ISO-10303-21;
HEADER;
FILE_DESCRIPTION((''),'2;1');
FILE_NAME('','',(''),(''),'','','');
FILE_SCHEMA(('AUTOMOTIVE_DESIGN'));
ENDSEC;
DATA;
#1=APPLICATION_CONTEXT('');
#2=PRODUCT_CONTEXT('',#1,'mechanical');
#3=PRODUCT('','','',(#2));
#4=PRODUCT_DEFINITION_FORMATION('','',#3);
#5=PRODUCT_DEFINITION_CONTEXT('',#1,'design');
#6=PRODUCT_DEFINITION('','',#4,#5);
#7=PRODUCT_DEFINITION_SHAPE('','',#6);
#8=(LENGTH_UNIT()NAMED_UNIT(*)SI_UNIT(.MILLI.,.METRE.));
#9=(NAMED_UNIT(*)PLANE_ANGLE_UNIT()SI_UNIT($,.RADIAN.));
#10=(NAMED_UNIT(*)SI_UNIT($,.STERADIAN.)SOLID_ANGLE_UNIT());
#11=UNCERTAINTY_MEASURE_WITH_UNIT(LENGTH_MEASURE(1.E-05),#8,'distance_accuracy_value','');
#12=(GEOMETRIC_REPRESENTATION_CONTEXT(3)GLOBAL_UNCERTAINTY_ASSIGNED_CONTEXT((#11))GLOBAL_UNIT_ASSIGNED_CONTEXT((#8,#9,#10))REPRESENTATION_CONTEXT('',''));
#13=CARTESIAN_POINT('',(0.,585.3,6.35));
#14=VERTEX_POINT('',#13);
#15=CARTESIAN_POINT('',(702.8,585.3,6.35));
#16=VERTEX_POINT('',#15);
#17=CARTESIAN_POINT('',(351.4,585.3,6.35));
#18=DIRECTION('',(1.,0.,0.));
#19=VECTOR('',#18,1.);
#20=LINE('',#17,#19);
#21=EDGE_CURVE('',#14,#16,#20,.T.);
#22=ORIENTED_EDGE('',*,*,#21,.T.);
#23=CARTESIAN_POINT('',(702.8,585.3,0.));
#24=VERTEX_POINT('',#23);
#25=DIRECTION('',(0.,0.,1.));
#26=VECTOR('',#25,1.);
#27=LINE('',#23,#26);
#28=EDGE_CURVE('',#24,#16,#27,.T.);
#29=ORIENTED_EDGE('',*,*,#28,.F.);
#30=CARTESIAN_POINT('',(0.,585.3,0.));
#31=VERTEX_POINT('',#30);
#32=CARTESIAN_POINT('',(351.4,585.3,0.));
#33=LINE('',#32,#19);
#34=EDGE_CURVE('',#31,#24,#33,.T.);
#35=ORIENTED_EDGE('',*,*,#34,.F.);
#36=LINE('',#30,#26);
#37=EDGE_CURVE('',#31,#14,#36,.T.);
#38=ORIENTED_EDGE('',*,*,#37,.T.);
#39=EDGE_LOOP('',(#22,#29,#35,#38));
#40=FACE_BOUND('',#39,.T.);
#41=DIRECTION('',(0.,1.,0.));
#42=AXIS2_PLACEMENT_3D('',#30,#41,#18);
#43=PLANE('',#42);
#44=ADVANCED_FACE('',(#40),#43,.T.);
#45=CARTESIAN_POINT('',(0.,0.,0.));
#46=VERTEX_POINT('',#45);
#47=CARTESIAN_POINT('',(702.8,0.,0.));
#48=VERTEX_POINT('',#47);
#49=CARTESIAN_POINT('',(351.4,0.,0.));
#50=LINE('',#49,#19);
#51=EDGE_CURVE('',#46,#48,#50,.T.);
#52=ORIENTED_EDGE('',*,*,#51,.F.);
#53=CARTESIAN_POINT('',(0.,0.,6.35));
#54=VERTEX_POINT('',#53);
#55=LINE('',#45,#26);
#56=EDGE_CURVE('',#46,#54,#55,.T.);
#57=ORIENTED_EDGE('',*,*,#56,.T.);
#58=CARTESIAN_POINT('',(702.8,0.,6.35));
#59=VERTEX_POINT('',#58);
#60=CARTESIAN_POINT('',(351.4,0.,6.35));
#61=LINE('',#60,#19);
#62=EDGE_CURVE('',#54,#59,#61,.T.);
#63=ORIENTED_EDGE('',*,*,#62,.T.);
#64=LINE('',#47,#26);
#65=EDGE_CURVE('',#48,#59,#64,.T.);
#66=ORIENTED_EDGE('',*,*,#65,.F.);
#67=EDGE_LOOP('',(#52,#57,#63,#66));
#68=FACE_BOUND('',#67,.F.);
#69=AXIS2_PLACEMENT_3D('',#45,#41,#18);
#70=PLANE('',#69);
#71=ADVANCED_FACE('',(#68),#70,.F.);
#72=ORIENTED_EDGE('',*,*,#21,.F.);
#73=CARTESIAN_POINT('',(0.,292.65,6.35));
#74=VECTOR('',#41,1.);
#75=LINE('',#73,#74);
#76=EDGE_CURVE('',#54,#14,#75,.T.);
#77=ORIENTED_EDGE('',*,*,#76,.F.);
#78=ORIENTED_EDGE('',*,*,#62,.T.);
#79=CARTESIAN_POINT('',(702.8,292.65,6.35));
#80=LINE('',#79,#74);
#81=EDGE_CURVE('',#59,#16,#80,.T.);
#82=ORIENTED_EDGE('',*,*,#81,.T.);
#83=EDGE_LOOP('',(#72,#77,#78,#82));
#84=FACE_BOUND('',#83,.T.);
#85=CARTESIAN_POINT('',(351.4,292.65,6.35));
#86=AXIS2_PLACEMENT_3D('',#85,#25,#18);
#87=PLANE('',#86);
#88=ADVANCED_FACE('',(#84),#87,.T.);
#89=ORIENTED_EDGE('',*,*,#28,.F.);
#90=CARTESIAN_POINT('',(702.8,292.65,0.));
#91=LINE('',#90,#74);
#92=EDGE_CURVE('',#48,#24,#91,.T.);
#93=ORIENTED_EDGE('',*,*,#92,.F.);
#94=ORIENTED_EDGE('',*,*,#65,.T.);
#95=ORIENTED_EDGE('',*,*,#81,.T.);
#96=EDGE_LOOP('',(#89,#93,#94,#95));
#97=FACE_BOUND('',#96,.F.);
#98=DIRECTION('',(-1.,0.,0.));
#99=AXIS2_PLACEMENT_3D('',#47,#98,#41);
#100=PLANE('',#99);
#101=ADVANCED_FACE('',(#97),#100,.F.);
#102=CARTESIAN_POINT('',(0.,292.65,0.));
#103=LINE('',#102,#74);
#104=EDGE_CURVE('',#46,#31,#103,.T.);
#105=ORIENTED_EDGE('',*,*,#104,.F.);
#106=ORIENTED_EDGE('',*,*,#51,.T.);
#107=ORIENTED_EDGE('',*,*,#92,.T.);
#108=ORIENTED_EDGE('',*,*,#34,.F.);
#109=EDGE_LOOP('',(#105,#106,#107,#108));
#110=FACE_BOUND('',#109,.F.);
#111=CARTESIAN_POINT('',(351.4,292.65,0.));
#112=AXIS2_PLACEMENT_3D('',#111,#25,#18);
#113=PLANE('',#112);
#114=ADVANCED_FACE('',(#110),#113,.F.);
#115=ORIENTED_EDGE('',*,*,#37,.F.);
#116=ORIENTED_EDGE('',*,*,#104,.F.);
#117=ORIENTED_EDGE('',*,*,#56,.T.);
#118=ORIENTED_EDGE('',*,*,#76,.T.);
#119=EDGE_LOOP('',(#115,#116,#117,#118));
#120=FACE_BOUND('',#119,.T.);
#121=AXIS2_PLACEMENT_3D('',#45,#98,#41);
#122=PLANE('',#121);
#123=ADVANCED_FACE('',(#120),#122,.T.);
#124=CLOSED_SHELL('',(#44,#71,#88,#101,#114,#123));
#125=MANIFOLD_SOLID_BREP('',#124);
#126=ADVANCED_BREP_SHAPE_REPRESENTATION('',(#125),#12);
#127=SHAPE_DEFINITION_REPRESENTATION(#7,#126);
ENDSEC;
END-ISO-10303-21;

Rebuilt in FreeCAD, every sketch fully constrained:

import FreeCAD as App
import Part
import Sketcher
from FreeCAD import Vector


def add_polygon(sketch, points):
    """Adds a closed chain of lines whose ends are joined by coincident constraints."""
    first, n = sketch.GeometryCount, len(points)
    for a, b in zip(points, points[1:] + points[:1]):
        sketch.addGeometry(Part.LineSegment(App.Vector(*a, 0), App.Vector(*b, 0)), False)
    for i in range(n):
        sketch.addConstraint(Sketcher.Constraint("Coincident", first + i, 2, first + (i + 1) % n, 1))

doc = App.newDocument("Part")
body = doc.addObject("PartDesign::Body", "Body")

# Sketch on XY plane
sketch1 = body.newObject("Sketcher::SketchObject", "Sketch")
sketch1.AttachmentSupport = (doc.getObject("XY_Plane"), [""])
sketch1.MapMode = "FlatFace"
add_polygon(sketch1, [(0, 585), (0, 0), (703, 0), (703, 585)])  # lines 0-3
sketch1.addConstraint(Sketcher.Constraint("Vertical", 0))
sketch1.addConstraint(Sketcher.Constraint("Horizontal", 1))
sketch1.addConstraint(Sketcher.Constraint("Vertical", 2))
sketch1.addConstraint(Sketcher.Constraint("Horizontal", 3))
sketch1.addConstraint(Sketcher.Constraint("Coincident", 0, 2, -1, 1))
sketch1.addConstraint(Sketcher.Constraint("DistanceX", 1, 1, 1, 2, 702.8))
sketch1.addConstraint(Sketcher.Constraint("DistanceY", 0, 2, 0, 1, 585.3))
pad1 = body.newObject("PartDesign::Pad", "Pad")
pad1.Profile = sketch1
pad1.Length = 6.35

doc.recompute()
